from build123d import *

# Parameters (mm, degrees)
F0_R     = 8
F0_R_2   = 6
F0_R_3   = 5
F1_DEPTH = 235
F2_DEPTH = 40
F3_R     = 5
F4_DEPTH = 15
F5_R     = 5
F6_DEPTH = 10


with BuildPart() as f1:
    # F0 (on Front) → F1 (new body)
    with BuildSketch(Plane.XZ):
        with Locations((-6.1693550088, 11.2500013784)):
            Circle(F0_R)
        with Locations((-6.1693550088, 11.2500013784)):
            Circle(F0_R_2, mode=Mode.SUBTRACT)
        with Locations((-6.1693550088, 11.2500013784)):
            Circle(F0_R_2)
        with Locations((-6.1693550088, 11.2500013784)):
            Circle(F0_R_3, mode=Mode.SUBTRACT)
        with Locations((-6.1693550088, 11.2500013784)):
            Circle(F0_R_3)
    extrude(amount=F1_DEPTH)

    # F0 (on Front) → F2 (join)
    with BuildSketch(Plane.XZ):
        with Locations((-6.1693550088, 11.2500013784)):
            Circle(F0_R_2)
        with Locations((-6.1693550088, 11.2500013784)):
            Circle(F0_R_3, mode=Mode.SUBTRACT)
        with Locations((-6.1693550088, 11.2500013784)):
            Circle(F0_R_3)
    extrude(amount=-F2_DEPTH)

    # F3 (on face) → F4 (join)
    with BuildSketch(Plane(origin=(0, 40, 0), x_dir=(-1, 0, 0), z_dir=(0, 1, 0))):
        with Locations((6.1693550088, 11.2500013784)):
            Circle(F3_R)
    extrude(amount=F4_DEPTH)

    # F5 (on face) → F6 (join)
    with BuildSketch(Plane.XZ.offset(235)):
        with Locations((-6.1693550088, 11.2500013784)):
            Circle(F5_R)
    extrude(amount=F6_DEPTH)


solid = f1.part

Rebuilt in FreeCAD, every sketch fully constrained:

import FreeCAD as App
import Part
import Sketcher

doc = App.newDocument("Part")
body = doc.addObject("PartDesign::Body", "Body")

sketch1 = body.newObject("Sketcher::SketchObject", "Sketch")
sketch1.AttachmentSupport = (doc.getObject("XZ_Plane"), [""])
sketch1.MapMode = "FlatFace"
sketch1.addGeometry(Part.Circle(App.Vector(-6.169355, 11.250001, 0), App.Vector(0, 0, 1), 8), False)
sketch1.addConstraint([
    Sketcher.Constraint("Diameter", 0, 16.0),
    Sketcher.Constraint("DistanceY", -1, 1, 0, 3, 11.250001),
    Sketcher.Constraint("DistanceX", 0, 3, -1, 1, 6.169355),
])
pad1 = body.newObject("PartDesign::Pad", "Pad")
pad1.Profile = sketch1
pad1.Length = 235

sketch2 = body.newObject("Sketcher::SketchObject", "Sketch001")
sketch2.AttachmentSupport = (doc.getObject("XZ_Plane"), [""])
sketch2.MapMode = "FlatFace"
sketch2.addGeometry(Part.Circle(App.Vector(-6.169355, 11.250001, 0), App.Vector(0, 0, 1), 6), False)
sketch2.addConstraint([
    Sketcher.Constraint("Diameter", 0, 12.0),
    Sketcher.Constraint("DistanceY", -1, 1, 0, 3, 11.250001),
    Sketcher.Constraint("DistanceX", 0, 3, -1, 1, 6.169355),
])
pad2 = body.newObject("PartDesign::Pad", "Pad001")
pad2.Profile = sketch2
pad2.Length = 40
pad2.Reversed = True

sketch3 = body.newObject("Sketcher::SketchObject", "Sketch002")
sketch3.AttachmentSupport = (doc.getObject("XZ_Plane"), [""])
sketch3.MapMode = "FlatFace"
sketch3.AttachmentOffset = App.Placement(App.Vector(0, 0, -40), App.Rotation())
sketch3.addGeometry(Part.Circle(App.Vector(-6.169355, 11.250001, 0), App.Vector(0, 0, 1), 5), False)
sketch3.addConstraint([
    Sketcher.Constraint("Diameter", 0, 10.0),
    Sketcher.Constraint("DistanceY", -1, 1, 0, 3, 11.250001),
    Sketcher.Constraint("DistanceX", 0, 3, -1, 1, 6.169355),
])
pad3 = body.newObject("PartDesign::Pad", "Pad002")
pad3.Profile = sketch3
pad3.Length = 15
pad3.Reversed = True

sketch4 = body.newObject("Sketcher::SketchObject", "Sketch003")
sketch4.AttachmentSupport = (doc.getObject("XZ_Plane"), [""])
sketch4.MapMode = "FlatFace"
sketch4.AttachmentOffset = App.Placement(App.Vector(0, 0, 235), App.Rotation())
sketch4.addGeometry(Part.Circle(App.Vector(-6.169355, 11.250001, 0), App.Vector(0, 0, 1), 5), False)
sketch4.addConstraint([
    Sketcher.Constraint("Diameter", 0, 10.0),
    Sketcher.Constraint("DistanceY", -1, 1, 0, 3, 11.250001),
    Sketcher.Constraint("DistanceX", 0, 3, -1, 1, 6.169355),
])
pad4 = body.newObject("PartDesign::Pad", "Pad003")
pad4.Profile = sketch4
pad4.Length = 10

doc.recompute()
